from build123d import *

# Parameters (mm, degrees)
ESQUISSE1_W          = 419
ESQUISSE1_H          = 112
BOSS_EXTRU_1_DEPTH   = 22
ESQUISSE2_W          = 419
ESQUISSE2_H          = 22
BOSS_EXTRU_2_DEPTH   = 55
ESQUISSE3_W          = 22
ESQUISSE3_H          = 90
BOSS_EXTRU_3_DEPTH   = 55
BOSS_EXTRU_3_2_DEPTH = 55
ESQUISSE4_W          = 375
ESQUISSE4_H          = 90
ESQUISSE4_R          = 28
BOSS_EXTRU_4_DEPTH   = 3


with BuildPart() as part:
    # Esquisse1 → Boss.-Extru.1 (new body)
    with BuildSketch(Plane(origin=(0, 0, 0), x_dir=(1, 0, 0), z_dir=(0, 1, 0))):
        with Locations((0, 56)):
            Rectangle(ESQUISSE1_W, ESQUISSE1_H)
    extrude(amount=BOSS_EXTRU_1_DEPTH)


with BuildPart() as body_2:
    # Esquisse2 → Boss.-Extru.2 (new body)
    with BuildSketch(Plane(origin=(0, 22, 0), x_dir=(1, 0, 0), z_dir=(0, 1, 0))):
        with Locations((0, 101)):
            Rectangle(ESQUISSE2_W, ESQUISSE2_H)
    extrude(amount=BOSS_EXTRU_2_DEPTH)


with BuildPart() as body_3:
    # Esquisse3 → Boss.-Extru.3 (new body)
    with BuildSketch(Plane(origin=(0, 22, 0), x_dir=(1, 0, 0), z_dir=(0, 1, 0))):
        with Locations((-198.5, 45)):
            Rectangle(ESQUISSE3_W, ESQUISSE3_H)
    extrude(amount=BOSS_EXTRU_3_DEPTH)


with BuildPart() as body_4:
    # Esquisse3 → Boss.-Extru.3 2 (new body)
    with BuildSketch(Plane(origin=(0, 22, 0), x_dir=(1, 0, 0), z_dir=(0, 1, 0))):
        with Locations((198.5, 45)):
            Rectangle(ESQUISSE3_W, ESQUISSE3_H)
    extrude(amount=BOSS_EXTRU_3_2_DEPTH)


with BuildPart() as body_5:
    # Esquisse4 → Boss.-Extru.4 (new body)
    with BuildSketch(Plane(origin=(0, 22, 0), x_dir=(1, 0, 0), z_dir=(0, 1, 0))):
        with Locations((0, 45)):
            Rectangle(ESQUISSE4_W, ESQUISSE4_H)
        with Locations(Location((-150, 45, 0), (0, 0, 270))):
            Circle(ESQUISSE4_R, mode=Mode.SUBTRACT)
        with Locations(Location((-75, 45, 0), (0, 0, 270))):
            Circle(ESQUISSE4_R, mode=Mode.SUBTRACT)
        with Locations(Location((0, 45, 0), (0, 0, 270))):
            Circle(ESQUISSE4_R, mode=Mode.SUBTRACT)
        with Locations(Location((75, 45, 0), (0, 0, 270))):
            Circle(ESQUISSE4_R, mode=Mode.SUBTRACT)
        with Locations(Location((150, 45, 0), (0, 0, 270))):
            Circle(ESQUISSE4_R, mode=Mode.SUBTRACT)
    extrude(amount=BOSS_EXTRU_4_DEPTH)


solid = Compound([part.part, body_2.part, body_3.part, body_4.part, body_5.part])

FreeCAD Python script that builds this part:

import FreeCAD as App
import Part
import Sketcher

V = App.Vector

doc = App.newDocument("Part")
body = doc.addObject("PartDesign::Body", "Body")

# Sketch on XZ plane
sketch1 = doc.addObject("Sketcher::SketchObject", "Sketch")
body.addObject(sketch1)
sketch1.AttachmentSupport = (doc.XZ_Plane, [""])
sketch1.MapMode = "FlatFace"
sketch1.addGeometry([
    Part.LineSegment(V(-210, -112, 0), V(-210, 0, 0)),
    Part.LineSegment(V(-210, 0, 0), V(210, 0, 0)),
    Part.LineSegment(V(210, 0, 0), V(210, -112, 0)),
    Part.LineSegment(V(210, -112, 0), V(-210, -112, 0)),
], False)
sketch1.addConstraint([
    Sketcher.Constraint("Coincident", 0, 2, 1, 1),
    Sketcher.Constraint("Coincident", 1, 2, 2, 1),
    Sketcher.Constraint("Coincident", 2, 2, 3, 1),
    Sketcher.Constraint("Coincident", 3, 2, 0, 1),
    Sketcher.Constraint("Vertical", 0),
    Sketcher.Constraint("Horizontal", 1),
    Sketcher.Constraint("Vertical", 2),
    Sketcher.Constraint("Horizontal", 3),
    Sketcher.Constraint("Symmetric", 0, 2, 1, 2, -1, 1),
    Sketcher.Constraint("DistanceX", 1, 1, 1, 2, 419.0),
    Sketcher.Constraint("DistanceY", 0, 1, 0, 2, 112.0),
])
pad1 = doc.addObject("PartDesign::Pad", "Pad")
body.addObject(pad1)
pad1.Profile = sketch1
pad1.Length = 22
pad1.Reversed = True
body2 = doc.addObject("PartDesign::Body", "Body001")

# Sketch on XZ plane
sketch2 = doc.addObject("Sketcher::SketchObject", "Sketch001")
body2.addObject(sketch2)
sketch2.AttachmentSupport = (doc.getObject("XZ_Plane001"), [""])
sketch2.MapMode = "FlatFace"
sketch2.AttachmentOffset = App.Placement(V(0, 0, -22), App.Rotation())
sketch2.addGeometry([
    Part.LineSegment(V(-210, -112, 0), V(-210, -90, 0)),
    Part.LineSegment(V(-210, -90, 0), V(210, -90, 0)),
    Part.LineSegment(V(210, -90, 0), V(210, -112, 0)),
    Part.LineSegment(V(210, -112, 0), V(-210, -112, 0)),
], False)
sketch2.addConstraint([
    Sketcher.Constraint("Coincident", 0, 2, 1, 1),
    Sketcher.Constraint("Coincident", 1, 2, 2, 1),
    Sketcher.Constraint("Coincident", 2, 2, 3, 1),
    Sketcher.Constraint("Coincident", 3, 2, 0, 1),
    Sketcher.Constraint("Vertical", 0),
    Sketcher.Constraint("Horizontal", 1),
    Sketcher.Constraint("Vertical", 2),
    Sketcher.Constraint("Horizontal", 3),
    Sketcher.Constraint("DistanceX", 1, 1, 1, 2, 419.0),
    Sketcher.Constraint("DistanceY", 0, 1, 0, 2, 22.0),
    Sketcher.Constraint("DistanceY", 0, 2, -1, 1, 90.0),
    Sketcher.Constraint("DistanceX", 0, 2, -1, 1, 209.5),
])
pad2 = doc.addObject("PartDesign::Pad", "Pad001")
body2.addObject(pad2)
pad2.Profile = sketch2
pad2.Length = 55
pad2.Reversed = True
body3 = doc.addObject("PartDesign::Body", "Body002")

# Sketch on XZ plane
sketch3 = doc.addObject("Sketcher::SketchObject", "Sketch002")
body3.addObject(sketch3)
sketch3.AttachmentSupport = (doc.getObject("XZ_Plane002"), [""])
sketch3.MapMode = "FlatFace"
sketch3.AttachmentOffset = App.Placement(V(0, 0, -22), App.Rotation())
sketch3.addGeometry([
    Part.LineSegment(V(-210, -90, 0), V(-210, 0, 0)),
    Part.LineSegment(V(-210, 0, 0), V(-188, 0, 0)),
    Part.LineSegment(V(-188, 0, 0), V(-188, -90, 0)),
    Part.LineSegment(V(-188, -90, 0), V(-210, -90, 0)),
], False)
sketch3.addConstraint([
    Sketcher.Constraint("Coincident", 0, 2, 1, 1),
    Sketcher.Constraint("Coincident", 1, 2, 2, 1),
    Sketcher.Constraint("Coincident", 2, 2, 3, 1),
    Sketcher.Constraint("Coincident", 3, 2, 0, 1),
    Sketcher.Constraint("Vertical", 0),
    Sketcher.Constraint("Horizontal", 1),
    Sketcher.Constraint("Vertical", 2),
    Sketcher.Constraint("Horizontal", 3),
    Sketcher.Constraint("PointOnObject", 0, 2, -1),
    Sketcher.Constraint("DistanceX", 1, 1, 1, 2, 22.0),
    Sketcher.Constraint("DistanceY", 0, 1, 0, 2, 90.0),
    Sketcher.Constraint("DistanceX", 0, 2, -1, 1, 209.5),
])
pad3 = doc.addObject("PartDesign::Pad", "Pad002")
body3.addObject(pad3)
pad3.Profile = sketch3
pad3.Length = 55
pad3.Reversed = True
body4 = doc.addObject("PartDesign::Body", "Body003")

# Sketch on XZ plane
sketch4 = doc.addObject("Sketcher::SketchObject", "Sketch003")
body4.addObject(sketch4)
sketch4.AttachmentSupport = (doc.getObject("XZ_Plane003"), [""])
sketch4.MapMode = "FlatFace"
sketch4.AttachmentOffset = App.Placement(V(0, 0, -22), App.Rotation())
sketch4.addGeometry([
    Part.LineSegment(V(188, -90, 0), V(188, 0, 0)),
    Part.LineSegment(V(188, 0, 0), V(210, 0, 0)),
    Part.LineSegment(V(210, 0, 0), V(210, -90, 0)),
    Part.LineSegment(V(210, -90, 0), V(188, -90, 0)),
], False)
sketch4.addConstraint([
    Sketcher.Constraint("Coincident", 0, 2, 1, 1),
    Sketcher.Constraint("Coincident", 1, 2, 2, 1),
    Sketcher.Constraint("Coincident", 2, 2, 3, 1),
    Sketcher.Constraint("Coincident", 3, 2, 0, 1),
    Sketcher.Constraint("Vertical", 0),
    Sketcher.Constraint("Horizontal", 1),
    Sketcher.Constraint("Vertical", 2),
    Sketcher.Constraint("Horizontal", 3),
    Sketcher.Constraint("PointOnObject", 0, 2, -1),
    Sketcher.Constraint("DistanceX", 1, 1, 1, 2, 22.0),
    Sketcher.Constraint("DistanceY", 0, 1, 0, 2, 90.0),
    Sketcher.Constraint("DistanceX", -1, 1, 0, 2, 187.5),
])
pad4 = doc.addObject("PartDesign::Pad", "Pad003")
body4.addObject(pad4)
pad4.Profile = sketch4
pad4.Length = 55
pad4.Reversed = True
body5 = doc.addObject("PartDesign::Body", "Body004")

# Sketch on XZ plane
sketch5 = doc.addObject("Sketcher::SketchObject", "Sketch004")
body5.addObject(sketch5)
sketch5.AttachmentSupport = (doc.getObject("XZ_Plane004"), [""])
sketch5.MapMode = "FlatFace"
sketch5.AttachmentOffset = App.Placement(V(0, 0, -22), App.Rotation())
sketch5.addGeometry([
    Part.LineSegment(V(-188, -90, 0), V(-188, 0, 0)),  # 0
    Part.LineSegment(V(-188, 0, 0), V(188, 0, 0)),  # 1
    Part.LineSegment(V(188, 0, 0), V(188, -90, 0)),  # 2
    Part.LineSegment(V(188, -90, 0), V(-188, -90, 0)),  # 3
    Part.Circle(V(-150, -45, 0), V(0, 0, 1), 28),  # 4
    Part.Circle(V(-75, -45, 0), V(0, 0, 1), 28),  # 5
    Part.Circle(V(0, -45, 0), V(0, 0, 1), 28),  # 6
    Part.Circle(V(75, -45, 0), V(0, 0, 1), 28),  # 7
    Part.Circle(V(150, -45, 0), V(0, 0, 1), 28),  # 8
], False)
sketch5.addConstraint([
    Sketcher.Constraint("Coincident", 0, 2, 1, 1),
    Sketcher.Constraint("Coincident", 1, 2, 2, 1),
    Sketcher.Constraint("Coincident", 2, 2, 3, 1),
    Sketcher.Constraint("Coincident", 3, 2, 0, 1),
    Sketcher.Constraint("Vertical", 0),
    Sketcher.Constraint("Horizontal", 1),
    Sketcher.Constraint("Vertical", 2),
    Sketcher.Constraint("Horizontal", 3),
    Sketcher.Constraint("Equal", 4, 5),
    Sketcher.Constraint("Equal", 5, 6),
    Sketcher.Constraint("Equal", 6, 7),
    Sketcher.Constraint("Equal", 7, 8),
    Sketcher.Constraint("Symmetric", 0, 2, 1, 2, -1, 1),
    Sketcher.Constraint("Symmetric", 5, 3, 7, 3, -2),
    Sketcher.Constraint("Symmetric", 4, 3, 8, 3, -2),
    Sketcher.Constraint("PointOnObject", 6, 3, -2),
    Sketcher.Constraint("Horizontal", 4, 3, 5, 3),
    Sketcher.Constraint("Horizontal", 5, 3, 6, 3),
    Sketcher.Constraint("Diameter", 4, 56.0),
    Sketcher.Constraint("DistanceX", 1, 1, 1, 2, 375.0),
    Sketcher.Constraint("DistanceY", 0, 1, 0, 2, 90.0),
    Sketcher.Constraint("DistanceX", 4, 3, -1, 1, 150.0),
    Sketcher.Constraint("DistanceY", 4, 3, -1, 1, 45.0),
    Sketcher.Constraint("DistanceX", 5, 3, -1, 1, 75.0),
])
pad5 = doc.addObject("PartDesign::Pad", "Pad004")
body5.addObject(pad5)
pad5.Profile = sketch5
pad5.Length = 3
pad5.Reversed = True

doc.recompute()
